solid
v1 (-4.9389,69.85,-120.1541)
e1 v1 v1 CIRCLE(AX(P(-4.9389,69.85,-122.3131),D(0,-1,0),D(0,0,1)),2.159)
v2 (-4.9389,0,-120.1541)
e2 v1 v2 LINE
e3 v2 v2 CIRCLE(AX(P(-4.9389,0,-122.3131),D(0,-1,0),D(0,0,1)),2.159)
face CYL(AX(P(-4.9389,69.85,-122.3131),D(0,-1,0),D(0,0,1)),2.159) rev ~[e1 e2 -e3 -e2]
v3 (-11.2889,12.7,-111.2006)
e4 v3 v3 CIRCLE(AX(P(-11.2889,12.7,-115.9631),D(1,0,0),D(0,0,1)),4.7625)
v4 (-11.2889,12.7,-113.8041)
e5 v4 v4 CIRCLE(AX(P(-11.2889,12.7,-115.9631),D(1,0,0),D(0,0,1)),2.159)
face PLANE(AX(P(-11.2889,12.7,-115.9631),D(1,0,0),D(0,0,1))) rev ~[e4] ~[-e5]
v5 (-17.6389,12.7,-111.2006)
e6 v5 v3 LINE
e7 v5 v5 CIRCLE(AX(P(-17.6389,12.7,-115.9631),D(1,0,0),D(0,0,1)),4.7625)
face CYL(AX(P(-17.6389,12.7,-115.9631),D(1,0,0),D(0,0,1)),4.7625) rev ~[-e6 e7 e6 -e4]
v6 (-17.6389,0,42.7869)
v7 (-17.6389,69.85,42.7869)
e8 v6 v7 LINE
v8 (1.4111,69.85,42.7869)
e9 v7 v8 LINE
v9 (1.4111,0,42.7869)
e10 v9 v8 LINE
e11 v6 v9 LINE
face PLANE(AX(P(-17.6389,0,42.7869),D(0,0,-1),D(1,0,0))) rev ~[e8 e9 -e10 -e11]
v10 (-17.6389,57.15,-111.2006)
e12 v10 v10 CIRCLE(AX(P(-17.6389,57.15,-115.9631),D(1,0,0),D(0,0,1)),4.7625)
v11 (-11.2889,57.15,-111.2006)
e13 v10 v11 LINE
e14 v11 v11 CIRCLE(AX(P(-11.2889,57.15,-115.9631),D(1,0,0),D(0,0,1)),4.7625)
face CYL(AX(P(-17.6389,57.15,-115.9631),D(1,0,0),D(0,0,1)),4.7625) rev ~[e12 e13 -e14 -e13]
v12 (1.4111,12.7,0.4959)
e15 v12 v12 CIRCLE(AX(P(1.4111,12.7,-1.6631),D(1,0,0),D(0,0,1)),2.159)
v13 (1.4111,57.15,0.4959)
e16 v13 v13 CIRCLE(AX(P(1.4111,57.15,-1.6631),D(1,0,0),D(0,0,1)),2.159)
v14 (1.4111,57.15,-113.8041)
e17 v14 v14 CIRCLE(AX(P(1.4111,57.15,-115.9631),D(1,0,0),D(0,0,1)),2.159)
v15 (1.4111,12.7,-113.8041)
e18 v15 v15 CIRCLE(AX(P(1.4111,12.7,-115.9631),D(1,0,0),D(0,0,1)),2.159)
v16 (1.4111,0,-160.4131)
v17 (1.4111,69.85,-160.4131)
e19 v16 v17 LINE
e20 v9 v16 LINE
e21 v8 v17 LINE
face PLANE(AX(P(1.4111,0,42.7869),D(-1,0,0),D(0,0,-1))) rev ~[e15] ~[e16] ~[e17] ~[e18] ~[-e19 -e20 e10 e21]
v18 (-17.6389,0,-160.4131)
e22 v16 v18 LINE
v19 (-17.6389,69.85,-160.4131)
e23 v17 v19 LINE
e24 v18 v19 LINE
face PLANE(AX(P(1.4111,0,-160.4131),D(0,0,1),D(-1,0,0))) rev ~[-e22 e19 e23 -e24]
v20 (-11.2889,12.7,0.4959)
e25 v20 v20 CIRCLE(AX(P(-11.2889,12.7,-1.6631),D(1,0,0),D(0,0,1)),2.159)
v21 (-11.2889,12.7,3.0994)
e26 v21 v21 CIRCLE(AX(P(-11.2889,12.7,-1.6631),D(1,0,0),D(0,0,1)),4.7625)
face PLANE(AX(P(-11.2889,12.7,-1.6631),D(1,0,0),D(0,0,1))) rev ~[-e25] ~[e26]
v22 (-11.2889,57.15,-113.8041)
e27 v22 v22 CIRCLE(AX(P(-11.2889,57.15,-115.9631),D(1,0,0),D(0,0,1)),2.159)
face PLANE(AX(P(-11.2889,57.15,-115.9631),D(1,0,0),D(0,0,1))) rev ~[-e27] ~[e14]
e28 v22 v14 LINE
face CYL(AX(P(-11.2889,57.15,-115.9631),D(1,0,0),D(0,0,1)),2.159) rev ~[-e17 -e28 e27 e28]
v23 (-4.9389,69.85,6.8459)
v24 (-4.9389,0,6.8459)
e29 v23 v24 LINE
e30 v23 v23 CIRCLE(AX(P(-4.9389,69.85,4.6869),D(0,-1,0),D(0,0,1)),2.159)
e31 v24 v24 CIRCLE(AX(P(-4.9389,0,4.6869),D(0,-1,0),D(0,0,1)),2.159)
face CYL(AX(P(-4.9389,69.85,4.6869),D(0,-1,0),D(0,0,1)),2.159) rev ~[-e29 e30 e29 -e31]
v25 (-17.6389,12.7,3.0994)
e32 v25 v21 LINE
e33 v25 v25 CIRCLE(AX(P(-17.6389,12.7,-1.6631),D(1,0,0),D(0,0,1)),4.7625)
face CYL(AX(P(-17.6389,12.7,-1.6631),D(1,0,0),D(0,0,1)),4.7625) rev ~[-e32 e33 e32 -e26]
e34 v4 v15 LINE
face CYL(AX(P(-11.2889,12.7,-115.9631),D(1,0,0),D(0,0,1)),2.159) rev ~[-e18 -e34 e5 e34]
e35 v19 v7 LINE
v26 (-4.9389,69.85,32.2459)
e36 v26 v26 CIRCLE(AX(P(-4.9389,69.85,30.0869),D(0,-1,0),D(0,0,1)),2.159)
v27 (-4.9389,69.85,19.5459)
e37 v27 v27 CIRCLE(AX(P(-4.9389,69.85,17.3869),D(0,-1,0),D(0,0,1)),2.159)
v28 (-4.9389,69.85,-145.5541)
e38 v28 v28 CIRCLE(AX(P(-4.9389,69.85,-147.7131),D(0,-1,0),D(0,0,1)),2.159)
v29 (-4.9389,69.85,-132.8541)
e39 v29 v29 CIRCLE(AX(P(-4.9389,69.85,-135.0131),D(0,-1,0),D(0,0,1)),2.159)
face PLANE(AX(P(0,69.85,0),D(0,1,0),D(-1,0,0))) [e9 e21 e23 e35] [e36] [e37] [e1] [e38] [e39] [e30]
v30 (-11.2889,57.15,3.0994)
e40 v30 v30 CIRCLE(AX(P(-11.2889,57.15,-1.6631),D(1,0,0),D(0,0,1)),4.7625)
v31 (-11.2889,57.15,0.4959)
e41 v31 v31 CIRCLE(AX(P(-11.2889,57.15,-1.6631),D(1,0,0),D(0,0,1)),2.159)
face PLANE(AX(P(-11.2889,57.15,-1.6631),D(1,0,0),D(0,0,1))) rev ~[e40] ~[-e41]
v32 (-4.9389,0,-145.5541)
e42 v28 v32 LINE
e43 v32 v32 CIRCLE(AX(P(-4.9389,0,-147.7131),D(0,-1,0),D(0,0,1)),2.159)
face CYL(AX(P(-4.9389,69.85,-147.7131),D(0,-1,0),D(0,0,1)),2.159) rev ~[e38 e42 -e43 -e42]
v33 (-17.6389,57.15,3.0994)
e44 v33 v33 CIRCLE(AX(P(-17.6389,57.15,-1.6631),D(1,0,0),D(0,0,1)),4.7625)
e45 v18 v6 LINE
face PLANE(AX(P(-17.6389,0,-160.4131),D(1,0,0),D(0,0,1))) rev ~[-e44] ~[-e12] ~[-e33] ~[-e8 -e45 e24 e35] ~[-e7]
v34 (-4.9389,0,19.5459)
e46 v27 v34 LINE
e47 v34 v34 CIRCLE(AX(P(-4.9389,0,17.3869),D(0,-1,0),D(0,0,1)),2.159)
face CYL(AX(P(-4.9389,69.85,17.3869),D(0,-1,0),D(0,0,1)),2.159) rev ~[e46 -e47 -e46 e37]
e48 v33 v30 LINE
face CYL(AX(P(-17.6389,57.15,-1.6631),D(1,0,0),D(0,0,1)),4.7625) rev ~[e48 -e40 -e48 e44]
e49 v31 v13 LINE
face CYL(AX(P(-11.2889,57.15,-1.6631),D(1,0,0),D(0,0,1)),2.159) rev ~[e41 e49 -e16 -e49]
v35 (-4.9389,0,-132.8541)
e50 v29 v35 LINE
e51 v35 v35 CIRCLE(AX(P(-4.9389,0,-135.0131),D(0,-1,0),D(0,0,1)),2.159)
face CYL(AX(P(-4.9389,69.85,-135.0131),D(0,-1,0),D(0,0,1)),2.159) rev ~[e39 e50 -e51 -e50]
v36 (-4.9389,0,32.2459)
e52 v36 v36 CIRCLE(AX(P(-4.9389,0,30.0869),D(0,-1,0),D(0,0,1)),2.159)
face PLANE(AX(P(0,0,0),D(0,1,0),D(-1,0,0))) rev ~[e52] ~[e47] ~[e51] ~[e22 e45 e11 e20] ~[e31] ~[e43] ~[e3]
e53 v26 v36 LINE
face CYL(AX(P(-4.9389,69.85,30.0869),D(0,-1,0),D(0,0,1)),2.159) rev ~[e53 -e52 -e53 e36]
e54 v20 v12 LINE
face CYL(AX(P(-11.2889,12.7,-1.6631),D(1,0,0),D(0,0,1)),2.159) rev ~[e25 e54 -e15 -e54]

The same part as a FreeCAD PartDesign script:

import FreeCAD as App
import Part
import Sketcher
Q = App.Units.Quantity

doc = App.newDocument("Part")
params = doc.addObject("Spreadsheet::Sheet", "Params")
for row, (alias, value) in enumerate([
    ("sketch1_height", "8 in"),
    ("sketch1_width", "0.75 in"),
    ("pad1_length", "2.75 in"),
    ("sketch2_diameter", "0.17 in"),
    ("hole_diameter", "0.17 in"),
    ("sketch3_diameter", "0.17 in"),
    ("hole2_diameter", "0.17 in"),
    ("hole2_depth", "1 in"),
    ("hole2_cbore_diameter", "0.375 in"),
    ("hole2_cbore_depth", "0.25 in"),
], start=1):
    params.set(f"A{row}", alias)
    params.set(f"B{row}", "=" + value)
    params.setAlias(f"B{row}", alias)

body = doc.addObject("PartDesign::Body", "Body")

# Sketch on XZ plane
sketch1 = body.newObject("Sketcher::SketchObject", "Sketch")
sketch1.AttachmentSupport = (doc.getObject("XZ_Plane"), [""])
sketch1.MapMode = "FlatFace"
sketch1.addGeometry([
    Part.LineSegment(App.Vector(-18, -160, 0), App.Vector(-18, 43, 0)),
    Part.LineSegment(App.Vector(-18, 43, 0), App.Vector(1, 43, 0)),
    Part.LineSegment(App.Vector(1, 43, 0), App.Vector(1, -160, 0)),
    Part.LineSegment(App.Vector(1, -160, 0), App.Vector(-18, -160, 0)),
], False)
sketch1.addConstraint([
    Sketcher.Constraint("Coincident", 0, 2, 1, 1),
    Sketcher.Constraint("Coincident", 1, 2, 2, 1),
    Sketcher.Constraint("Coincident", 2, 2, 3, 1),
    Sketcher.Constraint("Coincident", 3, 2, 0, 1),
    Sketcher.Constraint("Vertical", 0),
    Sketcher.Constraint("Horizontal", 1),
    Sketcher.Constraint("Vertical", 2),
    Sketcher.Constraint("Horizontal", 3),
    Sketcher.Constraint("DistanceY", 0, 1, 0, 2, Q("8 in")),
    Sketcher.Constraint("DistanceX", 1, 1, 1, 2, Q("0.75 in")),
    Sketcher.Constraint("DistanceX", 0, 2, -1, 1, 17.639),
    Sketcher.Constraint("DistanceY", -1, 1, 0, 2, 42.787),
])
sketch1.setExpression("Constraints[8]", "Params.sketch1_height")
sketch1.setExpression("Constraints[9]", "Params.sketch1_width")
pad1 = body.newObject("PartDesign::Pad", "Pad")
pad1.Profile = sketch1
pad1.setExpression("Length", "Params.pad1_length")
pad1.Reversed = True

# Sketch on XZ plane
sketch2 = body.newObject("Sketcher::SketchObject", "Sketch001")
sketch2.AttachmentSupport = (doc.getObject("XZ_Plane"), [""])
sketch2.MapMode = "FlatFace"
sketch2.AttachmentOffset = App.Placement(App.Vector(0, 0, -2.75 * 25.4), App.Rotation())
sketch2.addGeometry([
    Part.Circle(App.Vector(-4.9, 30.1, 0), App.Vector(0, 0, 1), 2.2),  # 0
    Part.Circle(App.Vector(-4.9, 17.4, 0), App.Vector(0, 0, 1), 2.2),  # 1
    Part.Circle(App.Vector(-4.9, 4.7, 0), App.Vector(0, 0, 1), 2.2),  # 2
    Part.Circle(App.Vector(-4.9, -135, 0), App.Vector(0, 0, 1), 2.2),  # 3
    Part.Circle(App.Vector(-4.9, -122.3, 0), App.Vector(0, 0, 1), 2.2),  # 4
    Part.Circle(App.Vector(-4.9, -147.7, 0), App.Vector(0, 0, 1), 2.2),  # 5
], False)
sketch2.addConstraint([
    Sketcher.Constraint("Equal", 0, 1),
    Sketcher.Constraint("Equal", 1, 2),
    Sketcher.Constraint("Equal", 2, 3),
    Sketcher.Constraint("Equal", 3, 4),
    Sketcher.Constraint("Equal", 4, 5),
    Sketcher.Constraint("Vertical", 0, 3, 1, 3),
    Sketcher.Constraint("Vertical", 1, 3, 2, 3),
    Sketcher.Constraint("Vertical", 2, 3, 3, 3),
    Sketcher.Constraint("Vertical", 3, 3, 4, 3),
    Sketcher.Constraint("Vertical", 4, 3, 5, 3),
    Sketcher.Constraint("Diameter", 0, Q("0.17 in")),
    Sketcher.Constraint("DistanceY", 2, 3, 0, 3, Q("1 in")),
    Sketcher.Constraint("DistanceY", 3, 3, 1, 3, Q("6 in")),
    Sketcher.Constraint("DistanceY", 4, 3, 2, 3, Q("5 in")),
    Sketcher.Constraint("DistanceY", 5, 3, 4, 3, Q("1 in")),
    Sketcher.Constraint("DistanceY", 1, 3, 0, 3, Q("0.5 in")),
    Sketcher.Constraint("DistanceX", 0, 3, -1, 1, 4.939),
    Sketcher.Constraint("DistanceY", -1, 1, 0, 3, 30.087),
])
sketch2.setExpression("Constraints[10]", "Params.sketch2_diameter")
doc.recompute()
hole = body.newObject("PartDesign::Hole", "Hole")
hole.Profile = sketch2
hole.ThreadType = "None"
hole.setExpression("Diameter", "Params.hole_diameter")
hole.DepthType = "ThroughAll"
hole.Reversed = True

# Sketch on YZ plane
sketch3 = body.newObject("Sketcher::SketchObject", "Sketch002")
sketch3.AttachmentSupport = (doc.getObject("YZ_Plane"), [""])
sketch3.MapMode = "FlatFace"
sketch3.AttachmentOffset = App.Placement(App.Vector(0, 0, -17.6389), App.Rotation())
sketch3.addGeometry([
    Part.Circle(App.Vector(57.1, -116, 0), App.Vector(0, 0, 1), 2.2),
    Part.Circle(App.Vector(12.7, -116, 0), App.Vector(0, 0, 1), 2.2),
    Part.Circle(App.Vector(57.1, -1.7, 0), App.Vector(0, 0, 1), 2.2),
    Part.Circle(App.Vector(12.7, -1.7, 0), App.Vector(0, 0, 1), 2.2),
], False)
sketch3.addConstraint([
    Sketcher.Constraint("Equal", 0, 1),
    Sketcher.Constraint("Equal", 1, 2),
    Sketcher.Constraint("Equal", 2, 3),
    Sketcher.Constraint("Horizontal", 0, 3, 1, 3),
    Sketcher.Constraint("Horizontal", 2, 3, 3, 3),
    Sketcher.Constraint("Vertical", 0, 3, 2, 3),
    Sketcher.Constraint("Vertical", 1, 3, 3, 3),
    Sketcher.Constraint("Diameter", 0, Q("0.17 in")),
    Sketcher.Constraint("DistanceX", -1, 1, 1, 3, Q("0.5 in")),
    Sketcher.Constraint("DistanceY", 0, 3, 2, 3, Q("4.5 in")),
    Sketcher.Constraint("DistanceX", -1, 1, 0, 3, Q("2.25 in")),
    Sketcher.Constraint("DistanceY", 0, 3, -1, 1, 115.963),
])
sketch3.setExpression("Constraints[7]", "Params.sketch3_diameter")
doc.recompute()
hole2 = body.newObject("PartDesign::Hole", "Hole001")
hole2.Profile = sketch3
hole2.ThreadType = "None"
hole2.setExpression("Diameter", "Params.hole2_diameter")
hole2.DepthType = "Dimension"
hole2.setExpression("Depth", "Params.hole2_depth")
hole2.DrillPoint = "Angled"
hole2.DrillPointAngle = 118
hole2.HoleCutType = "Counterbore"
hole2.setExpression("HoleCutDiameter", "Params.hole2_cbore_diameter")
hole2.setExpression("HoleCutDepth", "Params.hole2_cbore_depth")
hole2.Reversed = True

doc.recompute()
